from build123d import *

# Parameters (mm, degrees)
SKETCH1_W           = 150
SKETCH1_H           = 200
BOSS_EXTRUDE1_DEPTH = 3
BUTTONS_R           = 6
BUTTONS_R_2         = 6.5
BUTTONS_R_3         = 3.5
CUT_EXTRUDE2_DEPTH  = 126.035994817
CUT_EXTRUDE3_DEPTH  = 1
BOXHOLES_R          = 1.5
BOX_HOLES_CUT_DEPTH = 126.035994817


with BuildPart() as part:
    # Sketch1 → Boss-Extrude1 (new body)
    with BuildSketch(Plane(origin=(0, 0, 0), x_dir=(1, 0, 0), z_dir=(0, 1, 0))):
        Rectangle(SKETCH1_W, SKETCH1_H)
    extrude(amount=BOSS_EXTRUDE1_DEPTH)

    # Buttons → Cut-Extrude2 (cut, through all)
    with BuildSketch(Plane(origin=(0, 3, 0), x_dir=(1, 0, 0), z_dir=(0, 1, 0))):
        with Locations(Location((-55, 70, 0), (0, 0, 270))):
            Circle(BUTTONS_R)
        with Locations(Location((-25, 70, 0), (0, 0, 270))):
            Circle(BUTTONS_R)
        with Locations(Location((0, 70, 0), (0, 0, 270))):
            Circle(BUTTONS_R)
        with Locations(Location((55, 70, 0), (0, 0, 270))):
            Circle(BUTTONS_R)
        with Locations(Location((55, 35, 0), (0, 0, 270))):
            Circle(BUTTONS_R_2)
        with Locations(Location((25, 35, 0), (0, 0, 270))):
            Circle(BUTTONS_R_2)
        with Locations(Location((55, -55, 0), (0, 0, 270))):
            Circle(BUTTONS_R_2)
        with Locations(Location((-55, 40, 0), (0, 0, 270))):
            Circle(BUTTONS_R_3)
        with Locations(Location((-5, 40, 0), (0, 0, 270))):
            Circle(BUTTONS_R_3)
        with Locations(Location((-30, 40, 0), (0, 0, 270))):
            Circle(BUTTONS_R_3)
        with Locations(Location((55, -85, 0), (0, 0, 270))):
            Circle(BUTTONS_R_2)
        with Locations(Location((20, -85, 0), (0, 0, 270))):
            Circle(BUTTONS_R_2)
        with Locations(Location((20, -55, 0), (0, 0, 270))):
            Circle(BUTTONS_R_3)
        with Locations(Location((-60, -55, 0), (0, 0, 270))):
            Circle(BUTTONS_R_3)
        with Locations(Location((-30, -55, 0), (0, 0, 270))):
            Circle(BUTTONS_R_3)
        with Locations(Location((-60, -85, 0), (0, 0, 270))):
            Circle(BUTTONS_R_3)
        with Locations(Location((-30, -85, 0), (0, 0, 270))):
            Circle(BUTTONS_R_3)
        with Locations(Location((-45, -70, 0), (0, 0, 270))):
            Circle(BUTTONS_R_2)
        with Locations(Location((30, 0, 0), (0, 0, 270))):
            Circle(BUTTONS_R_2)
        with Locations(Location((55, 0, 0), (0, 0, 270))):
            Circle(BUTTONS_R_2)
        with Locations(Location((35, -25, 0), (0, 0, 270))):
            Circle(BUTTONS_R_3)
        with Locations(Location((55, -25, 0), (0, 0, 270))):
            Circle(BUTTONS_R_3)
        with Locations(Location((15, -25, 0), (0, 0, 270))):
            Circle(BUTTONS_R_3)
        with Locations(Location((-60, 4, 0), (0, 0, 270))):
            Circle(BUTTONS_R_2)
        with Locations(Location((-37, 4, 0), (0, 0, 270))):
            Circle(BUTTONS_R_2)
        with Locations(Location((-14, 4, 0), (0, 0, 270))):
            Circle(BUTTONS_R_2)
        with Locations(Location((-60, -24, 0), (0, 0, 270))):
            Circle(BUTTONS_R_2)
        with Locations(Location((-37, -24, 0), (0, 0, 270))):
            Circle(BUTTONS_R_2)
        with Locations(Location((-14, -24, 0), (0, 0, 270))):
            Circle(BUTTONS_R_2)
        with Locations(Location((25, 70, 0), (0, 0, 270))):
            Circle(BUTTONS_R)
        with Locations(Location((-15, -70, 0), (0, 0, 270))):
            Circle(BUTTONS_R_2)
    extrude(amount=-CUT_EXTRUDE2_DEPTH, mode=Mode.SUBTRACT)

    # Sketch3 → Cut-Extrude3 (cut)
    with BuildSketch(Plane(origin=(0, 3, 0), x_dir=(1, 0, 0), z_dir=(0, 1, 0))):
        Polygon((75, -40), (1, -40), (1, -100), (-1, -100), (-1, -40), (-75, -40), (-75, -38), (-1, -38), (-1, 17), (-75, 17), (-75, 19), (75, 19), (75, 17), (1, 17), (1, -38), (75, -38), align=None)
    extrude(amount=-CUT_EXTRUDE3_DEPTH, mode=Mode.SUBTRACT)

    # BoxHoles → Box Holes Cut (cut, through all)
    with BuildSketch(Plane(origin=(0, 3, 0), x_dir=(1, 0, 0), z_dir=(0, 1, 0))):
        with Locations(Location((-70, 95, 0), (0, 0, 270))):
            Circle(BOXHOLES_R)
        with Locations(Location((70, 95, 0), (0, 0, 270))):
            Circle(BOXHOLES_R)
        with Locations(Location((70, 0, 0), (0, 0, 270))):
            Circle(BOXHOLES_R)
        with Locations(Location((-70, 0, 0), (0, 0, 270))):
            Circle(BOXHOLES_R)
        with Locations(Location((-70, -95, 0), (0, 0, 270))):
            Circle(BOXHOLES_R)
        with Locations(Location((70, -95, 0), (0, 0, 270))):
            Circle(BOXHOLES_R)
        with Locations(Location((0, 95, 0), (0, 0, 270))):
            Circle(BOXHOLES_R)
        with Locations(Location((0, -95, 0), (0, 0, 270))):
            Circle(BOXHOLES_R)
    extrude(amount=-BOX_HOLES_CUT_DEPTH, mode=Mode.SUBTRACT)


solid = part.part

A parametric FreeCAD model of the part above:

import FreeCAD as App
import Part
import Sketcher

V = App.Vector

doc = App.newDocument("Part")
params = doc.addObject("Spreadsheet::Sheet", "Params")
for row, (alias, value) in enumerate([
    ("sketch1_width", "150 mm"),
    ("sketch1_height", "200 mm"),
    ("pad1_length", "3 mm"),
    ("sketch2_diameter", "12 mm"),
    ("sketch2_diameter2", "13 mm"),
    ("sketch2_diameter3", "7 mm"),
    ("sketch3_width", "74 mm"),
    ("sketch3_width2", "150 mm"),
    ("sketch3_height", "55 mm"),
    ("sketch3_height2", "60 mm"),
    ("pocket2_length", "1 mm"),
    ("sketch4_diameter", "3 mm"),
], start=1):
    params.set(f"A{row}", alias)
    params.set(f"B{row}", "=" + value)
    params.setAlias(f"B{row}", alias)

body = doc.addObject("PartDesign::Body", "Body")

sketch1 = body.newObject("Sketcher::SketchObject", "Sketch")
sketch1.AttachmentSupport = (doc.getObject("XZ_Plane"), [""])
sketch1.MapMode = "FlatFace"
sketch1.addGeometry([
    Part.LineSegment(V(-75, -100, 0), V(-75, 100, 0)),
    Part.LineSegment(V(-75, 100, 0), V(75, 100, 0)),
    Part.LineSegment(V(75, 100, 0), V(75, -100, 0)),
    Part.LineSegment(V(75, -100, 0), V(-75, -100, 0)),
], False)
sketch1.addConstraint([
    Sketcher.Constraint("Coincident", 0, 2, 1, 1),
    Sketcher.Constraint("Coincident", 1, 2, 2, 1),
    Sketcher.Constraint("Coincident", 2, 2, 3, 1),
    Sketcher.Constraint("Coincident", 3, 2, 0, 1),
    Sketcher.Constraint("Vertical", 0),
    Sketcher.Constraint("Horizontal", 1),
    Sketcher.Constraint("Vertical", 2),
    Sketcher.Constraint("Horizontal", 3),
    Sketcher.Constraint("Symmetric", 0, 2, 2, 2, -1, 1),
    Sketcher.Constraint("DistanceX", 1, 1, 1, 2, 150.0),
    Sketcher.Constraint("DistanceY", 0, 1, 0, 2, 200.0),
])
sketch1.setExpression("Constraints[9]", "Params.sketch1_width")
sketch1.setExpression("Constraints[10]", "Params.sketch1_height")
pad1 = body.newObject("PartDesign::Pad", "Pad")
pad1.Profile = sketch1
pad1.setExpression("Length", "Params.pad1_length")
pad1.Reversed = True

sketch2 = body.newObject("Sketcher::SketchObject", "Sketch001")
sketch2.AttachmentSupport = (doc.getObject("XZ_Plane"), [""])
sketch2.MapMode = "FlatFace"
sketch2.AttachmentOffset = App.Placement(V(0, 0, -3), App.Rotation())
sketch2.addGeometry([
    Part.Circle(V(-55, -70, 0), V(0, 0, 1), 6),
    Part.Circle(V(-25, -70, 0), V(0, 0, 1), 6),
    Part.Circle(V(0, -70, 0), V(0, 0, 1), 6),
    Part.Circle(V(55, -70, 0), V(0, 0, 1), 6),
    Part.Circle(V(55, -35, 0), V(0, 0, 1), 6.5),
    Part.Circle(V(25, -35, 0), V(0, 0, 1), 6.5),
    Part.Circle(V(55, 55, 0), V(0, 0, 1), 6.5),
    Part.Circle(V(-55, -40, 0), V(0, 0, 1), 3.5),
    Part.Circle(V(-5, -40, 0), V(0, 0, 1), 3.5),
    Part.Circle(V(-30, -40, 0), V(0, 0, 1), 3.5),
    Part.Circle(V(55, 85, 0), V(0, 0, 1), 6.5),
    Part.Circle(V(20, 85, 0), V(0, 0, 1), 6.5),
    Part.Circle(V(20, 55, 0), V(0, 0, 1), 3.5),
    Part.Circle(V(-60, 55, 0), V(0, 0, 1), 3.5),
    Part.Circle(V(-30, 55, 0), V(0, 0, 1), 3.5),
    Part.Circle(V(-60, 85, 0), V(0, 0, 1), 3.5),
    Part.Circle(V(-30, 85, 0), V(0, 0, 1), 3.5),
    Part.Circle(V(-45, 70, 0), V(0, 0, 1), 6.5),
    Part.Circle(V(30, 0, 0), V(0, 0, 1), 6.5),
    Part.Circle(V(55, 0, 0), V(0, 0, 1), 6.5),
    Part.Circle(V(35, 25, 0), V(0, 0, 1), 3.5),
    Part.Circle(V(55, 25, 0), V(0, 0, 1), 3.5),
    Part.Circle(V(15, 25, 0), V(0, 0, 1), 3.5),
    Part.Circle(V(-60, -4, 0), V(0, 0, 1), 6.5),
    Part.Circle(V(-37, -4, 0), V(0, 0, 1), 6.5),
    Part.Circle(V(-14, -4, 0), V(0, 0, 1), 6.5),
    Part.Circle(V(-60, 24, 0), V(0, 0, 1), 6.5),
    Part.Circle(V(-37, 24, 0), V(0, 0, 1), 6.5),
    Part.Circle(V(-14, 24, 0), V(0, 0, 1), 6.5),
    Part.Circle(V(25, -70, 0), V(0, 0, 1), 6),
    Part.Circle(V(-15, 70, 0), V(0, 0, 1), 6.5),
], False)
sketch2.addConstraint([
    Sketcher.Constraint("Equal", 0, 1),
    Sketcher.Constraint("Equal", 1, 2),
    Sketcher.Constraint("Equal", 2, 3),
    Sketcher.Constraint("Equal", 4, 5),
    Sketcher.Constraint("Equal", 5, 6),
    Sketcher.Constraint("Equal", 7, 8),
    Sketcher.Constraint("Equal", 8, 9),
    Sketcher.Constraint("Equal", 6, 10),
    Sketcher.Constraint("Equal", 10, 11),
    Sketcher.Constraint("Equal", 9, 12),
    Sketcher.Constraint("Equal", 12, 13),
    Sketcher.Constraint("Equal", 13, 14),
    Sketcher.Constraint("Equal", 14, 15),
    Sketcher.Constraint("Equal", 15, 16),
    Sketcher.Constraint("Equal", 11, 17),
    Sketcher.Constraint("Equal", 17, 18),
    Sketcher.Constraint("Equal", 18, 19),
    Sketcher.Constraint("Equal", 16, 20),
    Sketcher.Constraint("Equal", 20, 21),
    Sketcher.Constraint("Equal", 21, 22),
    Sketcher.Constraint("Equal", 19, 23),
    Sketcher.Constraint("Equal", 23, 24),
    Sketcher.Constraint("Equal", 24, 25),
    Sketcher.Constraint("Equal", 25, 26),
    Sketcher.Constraint("Equal", 26, 27),
    Sketcher.Constraint("Equal", 27, 28),
    Sketcher.Constraint("Equal", 3, 29),
    Sketcher.Constraint("Equal", 28, 30),
    Sketcher.Constraint("Symmetric", 0, 3, 3, 3, -2),
    Sketcher.Constraint("Symmetric", 1, 3, 29, 3, -2),
    Sketcher.Constraint("PointOnObject", 2, 3, -2),
    Sketcher.Constraint("PointOnObject", 18, 3, -1),
    Sketcher.Constraint("PointOnObject", 19, 3, -1),
    Sketcher.Constraint("Horizontal", 0, 3, 1, 3),
    Sketcher.Constraint("Horizontal", 1, 3, 2, 3),
    Sketcher.Constraint("Horizontal", 4, 3, 5, 3),
    Sketcher.Constraint("Horizontal", 7, 3, 8, 3),
    Sketcher.Constraint("Horizontal", 8, 3, 9, 3),
    Sketcher.Constraint("Horizontal", 10, 3, 11, 3),
    Sketcher.Constraint("Horizontal", 6, 3, 12, 3),
    Sketcher.Constraint("Horizontal", 12, 3, 13, 3),
    Sketcher.Constraint("Horizontal", 13, 3, 14, 3),
    Sketcher.Constraint("Horizontal", 11, 3, 15, 3),
    Sketcher.Constraint("Horizontal", 15, 3, 16, 3),
    Sketcher.Constraint("Horizontal", 20, 3, 21, 3),
    Sketcher.Constraint("Horizontal", 21, 3, 22, 3),
    Sketcher.Constraint("Horizontal", 23, 3, 24, 3),
    Sketcher.Constraint("Horizontal", 24, 3, 25, 3),
    Sketcher.Constraint("Horizontal", 26, 3, 27, 3),
    Sketcher.Constraint("Horizontal", 27, 3, 28, 3),
    Sketcher.Constraint("Horizontal", 17, 3, 30, 3),
    Sketcher.Constraint("Vertical", 3, 3, 4, 3),
    Sketcher.Constraint("Vertical", 4, 3, 6, 3),
    Sketcher.Constraint("Vertical", 0, 3, 7, 3),
    Sketcher.Constraint("Vertical", 6, 3, 10, 3),
    Sketcher.Constraint("Vertical", 11, 3, 12, 3),
    Sketcher.Constraint("Vertical", 9, 3, 14, 3),
    Sketcher.Constraint("Vertical", 13, 3, 15, 3),
    Sketcher.Constraint("Vertical", 14, 3, 16, 3),
    Sketcher.Constraint("Vertical", 10, 3, 19, 3),
    Sketcher.Constraint("Vertical", 19, 3, 21, 3),
    Sketcher.Constraint("Vertical", 15, 3, 23, 3),
    Sketcher.Constraint("Vertical", 23, 3, 26, 3),
    Sketcher.Constraint("Vertical", 24, 3, 27, 3),
    Sketcher.Constraint("Vertical", 25, 3, 28, 3),
    Sketcher.Constraint("Vertical", 5, 3, 29, 3),
    Sketcher.Constraint("Diameter", 0, 12.0),
    Sketcher.Constraint("Diameter", 4, 13.0),
    Sketcher.Constraint("Diameter", 7, 7.0),
    Sketcher.Constraint("DistanceX", 0, 3, -1, 1, 55.0),
    Sketcher.Constraint("DistanceY", 0, 3, -1, 1, 70.0),
    Sketcher.Constraint("DistanceX", 1, 3, -1, 1, 25.0),
    Sketcher.Constraint("DistanceY", 4, 3, -1, 1, 35.0),
    Sketcher.Constraint("DistanceY", -1, 1, 6, 3, 55.0),
    Sketcher.Constraint("DistanceY", 7, 3, -1, 1, 40.0),
    Sketcher.Constraint("DistanceX", 8, 3, -1, 1, 5.0),
    Sketcher.Constraint("DistanceX", 9, 3, -1, 1, 30.0),
    Sketcher.Constraint("DistanceY", -1, 1, 10, 3, 85.0),
    Sketcher.Constraint("DistanceX", -1, 1, 11, 3, 20.0),
    Sketcher.Constraint("DistanceX", 13, 3, -1, 1, 60.0),
    Sketcher.Constraint("DistanceX", 17, 3, -1, 1, 45.0),
    Sketcher.Constraint("DistanceY", -1, 1, 17, 3, 70.0),
    Sketcher.Constraint("DistanceX", -1, 1, 18, 3, 30.0),
    Sketcher.Constraint("DistanceX", -1, 1, 20, 3, 35.0),
    Sketcher.Constraint("DistanceY", -1, 1, 20, 3, 25.0),
    Sketcher.Constraint("DistanceX", -1, 1, 22, 3, 15.0),
    Sketcher.Constraint("DistanceY", 23, 3, -1, 1, 4.0),
    Sketcher.Constraint("DistanceX", 24, 3, -1, 1, 37.0),
    Sketcher.Constraint("DistanceX", 25, 3, -1, 1, 14.0),
    Sketcher.Constraint("DistanceY", -1, 1, 26, 3, 24.0),
    Sketcher.Constraint("DistanceX", 30, 3, -1, 1, 15.0),
])
sketch2.setExpression("Constraints[66]", "Params.sketch2_diameter")
sketch2.setExpression("Constraints[67]", "Params.sketch2_diameter2")
sketch2.setExpression("Constraints[68]", "Params.sketch2_diameter3")
pocket1 = body.newObject("PartDesign::Pocket", "Pocket")
pocket1.Profile = sketch2
pocket1.Type = "ThroughAll"
pocket1.Reversed = True

sketch3 = body.newObject("Sketcher::SketchObject", "Sketch002")
sketch3.AttachmentSupport = (doc.getObject("XZ_Plane"), [""])
sketch3.MapMode = "FlatFace"
sketch3.AttachmentOffset = App.Placement(V(0, 0, -3), App.Rotation())
sketch3.addGeometry([
    Part.LineSegment(V(1, 40, 0), V(75, 40, 0)),
    Part.LineSegment(V(75, 40, 0), V(75, 38, 0)),
    Part.LineSegment(V(75, 38, 0), V(1, 38, 0)),
    Part.LineSegment(V(1, 38, 0), V(1, -17, 0)),
    Part.LineSegment(V(1, -17, 0), V(75, -17, 0)),
    Part.LineSegment(V(75, -17, 0), V(75, -19, 0)),
    Part.LineSegment(V(75, -19, 0), V(-75, -19, 0)),
    Part.LineSegment(V(-75, -19, 0), V(-75, -17, 0)),
    Part.LineSegment(V(-75, -17, 0), V(-1, -17, 0)),
    Part.LineSegment(V(-1, -17, 0), V(-1, 38, 0)),
    Part.LineSegment(V(-1, 38, 0), V(-75, 38, 0)),
    Part.LineSegment(V(-75, 38, 0), V(-75, 40, 0)),
    Part.LineSegment(V(-75, 40, 0), V(-1, 40, 0)),
    Part.LineSegment(V(-1, 40, 0), V(-1, 100, 0)),
    Part.LineSegment(V(-1, 100, 0), V(1, 100, 0)),
    Part.LineSegment(V(1, 100, 0), V(1, 40, 0)),
], False)
sketch3.addConstraint([
    Sketcher.Constraint("Coincident", 0, 2, 1, 1),
    Sketcher.Constraint("Coincident", 1, 2, 2, 1),
    Sketcher.Constraint("Coincident", 2, 2, 3, 1),
    Sketcher.Constraint("Coincident", 3, 2, 4, 1),
    Sketcher.Constraint("Coincident", 4, 2, 5, 1),
    Sketcher.Constraint("Coincident", 5, 2, 6, 1),
    Sketcher.Constraint("Coincident", 6, 2, 7, 1),
    Sketcher.Constraint("Coincident", 7, 2, 8, 1),
    Sketcher.Constraint("Coincident", 8, 2, 9, 1),
    Sketcher.Constraint("Coincident", 9, 2, 10, 1),
    Sketcher.Constraint("Coincident", 10, 2, 11, 1),
    Sketcher.Constraint("Coincident", 11, 2, 12, 1),
    Sketcher.Constraint("Coincident", 12, 2, 13, 1),
    Sketcher.Constraint("Coincident", 13, 2, 14, 1),
    Sketcher.Constraint("Coincident", 14, 2, 15, 1),
    Sketcher.Constraint("Coincident", 15, 2, 0, 1),
    Sketcher.Constraint("Horizontal", 0),
    Sketcher.Constraint("Vertical", 1),
    Sketcher.Constraint("Horizontal", 2),
    Sketcher.Constraint("Vertical", 3),
    Sketcher.Constraint("Horizontal", 4),
    Sketcher.Constraint("Vertical", 5),
    Sketcher.Constraint("Horizontal", 6),
    Sketcher.Constraint("Vertical", 7),
    Sketcher.Constraint("Horizontal", 8),
    Sketcher.Constraint("Vertical", 9),
    Sketcher.Constraint("Horizontal", 10),
    Sketcher.Constraint("Vertical", 11),
    Sketcher.Constraint("Horizontal", 12),
    Sketcher.Constraint("Vertical", 13),
    Sketcher.Constraint("Horizontal", 14),
    Sketcher.Constraint("Vertical", 15),
    Sketcher.Constraint("Symmetric", 4, 2, 7, 2, -2),
    Sketcher.Constraint("Symmetric", 2, 2, 9, 2, -2),
    Sketcher.Constraint("Symmetric", 0, 2, 11, 2, -2),
    Sketcher.Constraint("Vertical", 1, 2, 4, 2),
    Sketcher.Constraint("Vertical", 9, 2, 12, 2),
    Sketcher.Constraint("Vertical", 3, 2, 14, 2),
    Sketcher.Constraint("Equal", 14, 1),
    Sketcher.Constraint("Equal", 1, 5),
    Sketcher.Constraint("DistanceX", 0, 1, 0, 2, 74.0),
    Sketcher.Constraint("DistanceX", 6, 2, 6, 1, 150.0),
    Sketcher.Constraint("DistanceY", 3, 2, 3, 1, 55.0),
    Sketcher.Constraint("DistanceY", 13, 1, 13, 2, 60.0),
    Sketcher.Constraint("DistanceY", -1, 1, 0, 2, 40.0),
])
sketch3.setExpression("Constraints[40]", "Params.sketch3_width")
sketch3.setExpression("Constraints[41]", "Params.sketch3_width2")
sketch3.setExpression("Constraints[42]", "Params.sketch3_height")
sketch3.setExpression("Constraints[43]", "Params.sketch3_height2")
pocket2 = body.newObject("PartDesign::Pocket", "Pocket001")
pocket2.Profile = sketch3
pocket2.setExpression("Length", "Params.pocket2_length")
pocket2.Reversed = True

sketch4 = body.newObject("Sketcher::SketchObject", "Sketch003")
sketch4.AttachmentSupport = (doc.getObject("XZ_Plane"), [""])
sketch4.MapMode = "FlatFace"
sketch4.AttachmentOffset = App.Placement(V(0, 0, -3), App.Rotation())
sketch4.addGeometry([
    Part.Circle(V(-70, -95, 0), V(0, 0, 1), 1.5),
    Part.Circle(V(70, -95, 0), V(0, 0, 1), 1.5),
    Part.Circle(V(70, 0, 0), V(0, 0, 1), 1.5),
    Part.Circle(V(-70, 0, 0), V(0, 0, 1), 1.5),
    Part.Circle(V(-70, 95, 0), V(0, 0, 1), 1.5),
    Part.Circle(V(70, 95, 0), V(0, 0, 1), 1.5),
    Part.Circle(V(0, -95, 0), V(0, 0, 1), 1.5),
    Part.Circle(V(0, 95, 0), V(0, 0, 1), 1.5),
], False)
sketch4.addConstraint([
    Sketcher.Constraint("Equal", 0, 1),
    Sketcher.Constraint("Equal", 1, 2),
    Sketcher.Constraint("Equal", 2, 3),
    Sketcher.Constraint("Equal", 3, 4),
    Sketcher.Constraint("Equal", 4, 5),
    Sketcher.Constraint("Equal", 5, 6),
    Sketcher.Constraint("Equal", 6, 7),
    Sketcher.Constraint("Symmetric", 2, 3, 3, 3, -1, 1),
    Sketcher.Constraint("Symmetric", 1, 3, 4, 3, -1, 1),
    Sketcher.Constraint("Symmetric", 0, 3, 5, 3, -1, 1),
    Sketcher.Constraint("Symmetric", 6, 3, 7, 3, -1, 1),
    Sketcher.Constraint("Symmetric", 0, 3, 1, 3, -2),
    Sketcher.Constraint("PointOnObject", 2, 3, -1),
    Sketcher.Constraint("PointOnObject", 6, 3, -2),
    Sketcher.Constraint("Horizontal", 1, 3, 6, 3),
    Sketcher.Constraint("Vertical", 1, 3, 2, 3),
    Sketcher.Constraint("Diameter", 0, 3.0),
    Sketcher.Constraint("DistanceX", 0, 3, -1, 1, 70.0),
    Sketcher.Constraint("DistanceY", 0, 3, -1, 1, 95.0),
])
sketch4.setExpression("Constraints[16]", "Params.sketch4_diameter")
pocket3 = body.newObject("PartDesign::Pocket", "Pocket002")
pocket3.Profile = sketch4
pocket3.Type = "ThroughAll"
pocket3.Reversed = True

doc.recompute()
